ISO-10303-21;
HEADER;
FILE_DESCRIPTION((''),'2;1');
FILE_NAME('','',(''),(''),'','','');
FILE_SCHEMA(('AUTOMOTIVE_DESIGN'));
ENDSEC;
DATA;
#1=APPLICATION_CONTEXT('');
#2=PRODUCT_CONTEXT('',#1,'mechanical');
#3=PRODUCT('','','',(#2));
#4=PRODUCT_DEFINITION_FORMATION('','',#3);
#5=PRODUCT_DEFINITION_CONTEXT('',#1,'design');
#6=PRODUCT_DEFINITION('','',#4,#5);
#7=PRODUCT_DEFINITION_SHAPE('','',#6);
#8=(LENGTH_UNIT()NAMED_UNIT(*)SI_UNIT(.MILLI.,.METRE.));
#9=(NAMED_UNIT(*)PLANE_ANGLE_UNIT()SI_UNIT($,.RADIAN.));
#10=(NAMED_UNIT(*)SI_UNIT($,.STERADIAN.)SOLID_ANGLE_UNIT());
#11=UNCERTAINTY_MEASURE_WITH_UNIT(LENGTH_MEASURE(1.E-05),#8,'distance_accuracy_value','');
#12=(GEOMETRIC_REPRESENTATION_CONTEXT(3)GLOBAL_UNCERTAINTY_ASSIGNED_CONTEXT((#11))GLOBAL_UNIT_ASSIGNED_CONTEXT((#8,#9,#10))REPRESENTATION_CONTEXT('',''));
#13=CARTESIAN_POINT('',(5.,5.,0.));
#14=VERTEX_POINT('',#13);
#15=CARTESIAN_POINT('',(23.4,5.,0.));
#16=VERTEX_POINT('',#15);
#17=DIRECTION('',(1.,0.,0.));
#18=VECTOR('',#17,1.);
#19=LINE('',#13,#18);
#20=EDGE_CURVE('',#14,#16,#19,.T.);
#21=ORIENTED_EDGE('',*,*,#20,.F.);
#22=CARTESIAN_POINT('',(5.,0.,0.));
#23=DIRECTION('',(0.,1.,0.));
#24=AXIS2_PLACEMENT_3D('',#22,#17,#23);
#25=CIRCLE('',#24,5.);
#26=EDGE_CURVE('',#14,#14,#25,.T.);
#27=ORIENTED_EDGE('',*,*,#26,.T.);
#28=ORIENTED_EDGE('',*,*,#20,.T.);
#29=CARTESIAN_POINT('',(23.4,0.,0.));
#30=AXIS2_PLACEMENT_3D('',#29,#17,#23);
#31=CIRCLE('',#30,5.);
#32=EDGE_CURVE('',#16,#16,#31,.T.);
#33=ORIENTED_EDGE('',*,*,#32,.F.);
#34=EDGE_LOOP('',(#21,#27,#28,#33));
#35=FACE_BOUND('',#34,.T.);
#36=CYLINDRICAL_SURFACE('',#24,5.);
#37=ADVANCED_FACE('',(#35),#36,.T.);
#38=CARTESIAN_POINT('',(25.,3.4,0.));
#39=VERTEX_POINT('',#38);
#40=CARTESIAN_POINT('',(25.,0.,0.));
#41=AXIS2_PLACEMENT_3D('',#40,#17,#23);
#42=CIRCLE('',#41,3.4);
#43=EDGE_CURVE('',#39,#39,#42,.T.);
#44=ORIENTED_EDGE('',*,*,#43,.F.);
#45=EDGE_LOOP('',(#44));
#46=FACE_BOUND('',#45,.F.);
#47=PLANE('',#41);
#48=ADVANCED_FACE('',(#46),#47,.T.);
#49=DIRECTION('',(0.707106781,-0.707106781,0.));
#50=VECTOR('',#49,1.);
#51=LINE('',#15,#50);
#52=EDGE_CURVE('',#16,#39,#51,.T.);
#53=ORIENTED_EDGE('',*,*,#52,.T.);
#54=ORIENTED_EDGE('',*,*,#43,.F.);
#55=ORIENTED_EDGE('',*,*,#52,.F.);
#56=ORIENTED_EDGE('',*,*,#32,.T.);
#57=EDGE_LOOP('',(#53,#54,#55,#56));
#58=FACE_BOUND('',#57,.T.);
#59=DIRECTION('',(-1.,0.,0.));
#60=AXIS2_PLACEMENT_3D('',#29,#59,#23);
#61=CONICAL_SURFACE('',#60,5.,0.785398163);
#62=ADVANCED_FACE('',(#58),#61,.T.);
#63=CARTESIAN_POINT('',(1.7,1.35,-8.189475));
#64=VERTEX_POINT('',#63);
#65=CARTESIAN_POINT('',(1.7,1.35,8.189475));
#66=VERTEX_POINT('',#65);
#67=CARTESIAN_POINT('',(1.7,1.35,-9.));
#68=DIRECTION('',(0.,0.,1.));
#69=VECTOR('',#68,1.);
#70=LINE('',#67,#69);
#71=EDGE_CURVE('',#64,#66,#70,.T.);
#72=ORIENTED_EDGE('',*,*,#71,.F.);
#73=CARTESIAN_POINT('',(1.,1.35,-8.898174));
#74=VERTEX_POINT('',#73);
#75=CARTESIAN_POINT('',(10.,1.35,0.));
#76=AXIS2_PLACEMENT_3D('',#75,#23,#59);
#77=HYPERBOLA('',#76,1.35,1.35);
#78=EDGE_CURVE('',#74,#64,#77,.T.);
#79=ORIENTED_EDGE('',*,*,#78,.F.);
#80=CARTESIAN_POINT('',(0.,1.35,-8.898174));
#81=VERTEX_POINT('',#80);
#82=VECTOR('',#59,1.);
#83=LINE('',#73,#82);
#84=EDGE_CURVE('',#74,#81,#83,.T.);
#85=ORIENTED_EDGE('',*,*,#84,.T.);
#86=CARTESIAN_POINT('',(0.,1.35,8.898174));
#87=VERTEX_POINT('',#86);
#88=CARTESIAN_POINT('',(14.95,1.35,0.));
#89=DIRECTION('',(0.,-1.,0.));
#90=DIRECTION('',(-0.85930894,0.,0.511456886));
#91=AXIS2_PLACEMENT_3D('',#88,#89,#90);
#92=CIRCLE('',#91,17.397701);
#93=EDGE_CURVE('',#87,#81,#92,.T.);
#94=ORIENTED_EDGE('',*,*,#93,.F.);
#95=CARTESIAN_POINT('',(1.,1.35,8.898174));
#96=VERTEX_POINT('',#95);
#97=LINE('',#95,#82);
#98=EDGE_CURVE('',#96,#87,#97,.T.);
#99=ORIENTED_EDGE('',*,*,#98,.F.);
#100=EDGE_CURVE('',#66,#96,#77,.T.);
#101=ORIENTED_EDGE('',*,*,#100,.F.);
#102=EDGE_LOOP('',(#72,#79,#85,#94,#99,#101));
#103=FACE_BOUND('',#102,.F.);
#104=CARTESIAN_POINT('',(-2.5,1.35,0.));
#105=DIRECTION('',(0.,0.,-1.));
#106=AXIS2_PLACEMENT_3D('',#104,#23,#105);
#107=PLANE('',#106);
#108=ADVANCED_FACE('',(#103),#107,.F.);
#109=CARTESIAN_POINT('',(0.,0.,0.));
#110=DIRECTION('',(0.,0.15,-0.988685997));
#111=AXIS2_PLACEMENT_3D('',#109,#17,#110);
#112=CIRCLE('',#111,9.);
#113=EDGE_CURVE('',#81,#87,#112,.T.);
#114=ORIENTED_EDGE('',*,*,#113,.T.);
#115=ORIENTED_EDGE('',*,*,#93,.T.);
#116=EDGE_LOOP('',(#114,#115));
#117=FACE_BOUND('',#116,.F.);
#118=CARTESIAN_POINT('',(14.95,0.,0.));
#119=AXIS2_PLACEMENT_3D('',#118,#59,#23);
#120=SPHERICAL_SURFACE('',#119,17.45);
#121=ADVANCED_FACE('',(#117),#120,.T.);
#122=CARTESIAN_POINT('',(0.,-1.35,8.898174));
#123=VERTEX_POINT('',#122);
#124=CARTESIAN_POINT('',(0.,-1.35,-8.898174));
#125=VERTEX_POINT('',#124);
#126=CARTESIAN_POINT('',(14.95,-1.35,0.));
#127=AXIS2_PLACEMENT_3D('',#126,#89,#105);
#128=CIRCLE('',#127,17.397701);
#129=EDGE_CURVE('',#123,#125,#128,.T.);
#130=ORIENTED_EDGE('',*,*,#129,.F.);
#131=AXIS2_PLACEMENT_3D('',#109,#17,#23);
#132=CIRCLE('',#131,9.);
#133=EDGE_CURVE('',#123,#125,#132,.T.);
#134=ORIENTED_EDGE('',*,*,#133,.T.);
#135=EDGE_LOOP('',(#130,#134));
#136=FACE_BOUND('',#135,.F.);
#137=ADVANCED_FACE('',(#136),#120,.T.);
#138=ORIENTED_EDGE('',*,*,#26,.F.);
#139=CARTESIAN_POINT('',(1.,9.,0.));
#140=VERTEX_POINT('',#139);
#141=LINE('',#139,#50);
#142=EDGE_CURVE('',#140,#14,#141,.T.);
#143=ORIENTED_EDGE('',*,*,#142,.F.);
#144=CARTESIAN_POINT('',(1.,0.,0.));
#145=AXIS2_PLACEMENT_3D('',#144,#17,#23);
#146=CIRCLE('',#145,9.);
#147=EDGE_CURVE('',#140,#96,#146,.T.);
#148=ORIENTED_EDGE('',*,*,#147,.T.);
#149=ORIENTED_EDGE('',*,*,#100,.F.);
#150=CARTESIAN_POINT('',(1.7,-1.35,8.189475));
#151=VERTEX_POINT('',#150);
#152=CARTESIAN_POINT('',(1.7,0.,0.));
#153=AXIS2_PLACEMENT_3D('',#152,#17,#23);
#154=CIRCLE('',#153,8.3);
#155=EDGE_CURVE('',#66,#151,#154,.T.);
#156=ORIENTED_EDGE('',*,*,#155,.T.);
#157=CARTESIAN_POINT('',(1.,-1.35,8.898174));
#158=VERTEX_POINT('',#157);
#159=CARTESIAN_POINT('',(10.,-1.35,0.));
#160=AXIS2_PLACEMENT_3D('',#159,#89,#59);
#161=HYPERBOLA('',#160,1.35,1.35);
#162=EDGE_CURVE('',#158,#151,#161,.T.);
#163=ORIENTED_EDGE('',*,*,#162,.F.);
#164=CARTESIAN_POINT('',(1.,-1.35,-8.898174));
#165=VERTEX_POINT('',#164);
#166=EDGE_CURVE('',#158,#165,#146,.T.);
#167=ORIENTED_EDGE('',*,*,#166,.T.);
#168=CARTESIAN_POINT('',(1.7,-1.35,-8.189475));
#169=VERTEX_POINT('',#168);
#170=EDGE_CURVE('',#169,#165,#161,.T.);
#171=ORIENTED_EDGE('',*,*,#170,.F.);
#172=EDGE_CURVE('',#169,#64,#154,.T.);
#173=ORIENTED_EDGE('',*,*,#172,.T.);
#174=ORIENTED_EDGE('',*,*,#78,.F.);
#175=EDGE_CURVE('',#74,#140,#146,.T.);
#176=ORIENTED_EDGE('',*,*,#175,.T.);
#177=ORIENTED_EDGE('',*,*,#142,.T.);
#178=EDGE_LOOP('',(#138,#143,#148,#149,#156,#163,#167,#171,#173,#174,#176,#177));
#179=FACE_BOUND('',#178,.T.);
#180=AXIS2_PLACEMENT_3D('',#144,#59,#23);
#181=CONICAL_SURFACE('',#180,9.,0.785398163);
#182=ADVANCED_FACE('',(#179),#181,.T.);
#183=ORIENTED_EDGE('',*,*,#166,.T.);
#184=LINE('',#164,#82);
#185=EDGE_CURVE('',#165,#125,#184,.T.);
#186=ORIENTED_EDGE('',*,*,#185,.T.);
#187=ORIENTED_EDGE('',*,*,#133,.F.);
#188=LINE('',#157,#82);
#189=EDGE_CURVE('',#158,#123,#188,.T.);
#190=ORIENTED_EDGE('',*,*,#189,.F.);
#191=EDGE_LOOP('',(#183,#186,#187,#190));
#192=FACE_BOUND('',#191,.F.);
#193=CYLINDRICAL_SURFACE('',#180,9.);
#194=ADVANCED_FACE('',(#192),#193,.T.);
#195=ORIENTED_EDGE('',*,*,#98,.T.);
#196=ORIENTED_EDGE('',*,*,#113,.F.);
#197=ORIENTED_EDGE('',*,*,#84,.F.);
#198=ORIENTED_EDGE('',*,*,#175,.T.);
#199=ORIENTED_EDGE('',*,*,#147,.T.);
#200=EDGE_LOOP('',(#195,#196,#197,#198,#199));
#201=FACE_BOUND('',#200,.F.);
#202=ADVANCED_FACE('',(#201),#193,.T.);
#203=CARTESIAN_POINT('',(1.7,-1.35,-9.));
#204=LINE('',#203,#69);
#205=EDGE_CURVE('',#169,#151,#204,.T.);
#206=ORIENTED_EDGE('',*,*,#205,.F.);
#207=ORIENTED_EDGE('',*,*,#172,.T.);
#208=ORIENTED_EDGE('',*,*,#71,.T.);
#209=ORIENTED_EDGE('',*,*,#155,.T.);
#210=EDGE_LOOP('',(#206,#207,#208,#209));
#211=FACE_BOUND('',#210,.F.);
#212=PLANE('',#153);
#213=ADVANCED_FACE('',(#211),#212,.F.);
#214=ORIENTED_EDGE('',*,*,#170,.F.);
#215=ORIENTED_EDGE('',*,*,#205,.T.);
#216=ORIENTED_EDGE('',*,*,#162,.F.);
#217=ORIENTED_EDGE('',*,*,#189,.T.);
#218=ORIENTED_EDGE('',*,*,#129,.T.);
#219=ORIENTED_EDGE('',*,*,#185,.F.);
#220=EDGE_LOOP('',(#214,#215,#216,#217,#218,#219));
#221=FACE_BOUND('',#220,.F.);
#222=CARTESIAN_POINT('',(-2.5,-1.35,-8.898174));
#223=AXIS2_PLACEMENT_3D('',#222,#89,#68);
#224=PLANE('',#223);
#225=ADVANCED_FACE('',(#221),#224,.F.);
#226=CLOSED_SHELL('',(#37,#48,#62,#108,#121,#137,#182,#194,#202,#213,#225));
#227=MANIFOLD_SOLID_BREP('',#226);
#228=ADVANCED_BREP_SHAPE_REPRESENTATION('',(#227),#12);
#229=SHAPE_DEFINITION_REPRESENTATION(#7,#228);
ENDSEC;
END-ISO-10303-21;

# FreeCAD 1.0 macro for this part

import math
import FreeCAD as App
import Part
import Sketcher

V = App.Vector
Q = App.Units.Quantity


def edges_at(feature, points):
    """Names of the edges that pass closest to the given points."""
    edges = feature.Shape.Edges
    near = lambda p: min(range(len(edges)), key=lambda i: edges[i].distToShape(Part.Vertex(*p))[0])
    return sorted({f"Edge{near(p) + 1}" for p in points})


def add_polygon(sketch, points):
    """Adds a closed chain of lines whose ends are joined by coincident constraints."""
    first, n = sketch.GeometryCount, len(points)
    for a, b in zip(points, points[1:] + points[:1]):
        sketch.addGeometry(Part.LineSegment(App.Vector(*a, 0), App.Vector(*b, 0)), False)
    for i in range(n):
        sketch.addConstraint(Sketcher.Constraint("Coincident", first + i, 2, first + (i + 1) % n, 1))

doc = App.newDocument("Part")
body = doc.addObject("PartDesign::Body", "Body")

sketch1 = body.newObject("Sketcher::SketchObject", "Sketch")
sketch1.AttachmentSupport = (doc.getObject("XY_Plane"), [""])
sketch1.MapMode = "FlatFace"
sketch1.addGeometry(Part.LineSegment(V(25, 0, 0), V(25, 5, 0)), False)
sketch1.addGeometry(Part.LineSegment(V(25, 5, 0), V(5, 5, 0)), False)
sketch1.addGeometry(Part.LineSegment(V(5, 5, 0), V(1, 9, 0)), False)
sketch1.addGeometry(Part.LineSegment(V(1, 9, 0), V(0, 9, 0)), False)
sketch1.addGeometry(Part.ArcOfCircle(Part.Circle(V(14.9, 0, 0), V(0, 0, 1), 17.4), math.radians(149), math.radians(180)), False)
sketch1.addGeometry(Part.LineSegment(V(-2.5, 0, 0), V(25, 0, 0)), False)
sketch1.addConstraint(Sketcher.Constraint("Coincident", 0, 2, 1, 1))
sketch1.addConstraint(Sketcher.Constraint("Coincident", 1, 2, 2, 1))
sketch1.addConstraint(Sketcher.Constraint("Coincident", 2, 2, 3, 1))
sketch1.addConstraint(Sketcher.Constraint("Coincident", 3, 2, 4, 1))
sketch1.addConstraint(Sketcher.Constraint("Coincident", 4, 2, 5, 1))
sketch1.addConstraint(Sketcher.Constraint("Coincident", 5, 2, 0, 1))
sketch1.addConstraint(Sketcher.Constraint("Vertical", 0))
sketch1.addConstraint(Sketcher.Constraint("Horizontal", 1))
sketch1.addConstraint(Sketcher.Constraint("Horizontal", 3))
sketch1.addConstraint(Sketcher.Constraint("Horizontal", 5))
sketch1.addConstraint(Sketcher.Constraint("PointOnObject", 4, 3, -1))
sketch1.addConstraint(Sketcher.Constraint("PointOnObject", 3, 2, -2))
sketch1.addConstraint(Sketcher.Constraint("PointOnObject", 4, 2, -1))
sketch1.addConstraint(Sketcher.Constraint("DistanceY", 0, 1, 0, 2, Q("5 mm")))
sketch1.addConstraint(Sketcher.Constraint("DistanceX", -1, 1, 0, 2, Q("25 mm")))
sketch1.addConstraint(Sketcher.Constraint("DistanceX", -1, 1, 1, 2, Q("5 mm")))
sketch1.addConstraint(Sketcher.Constraint("DistanceX", 4, 2, -1, 1, Q("2.5 mm")))
sketch1.addConstraint(Sketcher.Constraint("DistanceX", 3, 2, 3, 1, Q("1 mm")))
sketch1.addConstraint(Sketcher.Constraint("Angle", 2, Q("135 deg")))
revolution = body.newObject("PartDesign::Revolution", "Revolution")
revolution.Profile = sketch1
revolution.ReferenceAxis = (sketch1, ["H_Axis"])
revolution.Angle = 360

sketch2 = body.newObject("Sketcher::SketchObject", "Sketch001")
sketch2.AttachmentSupport = (doc.getObject("YZ_Plane"), [""])
sketch2.MapMode = "FlatFace"
sketch2.AttachmentOffset = App.Placement(V(0, 0, -2.5), App.Rotation())
add_polygon(sketch2, [(-1.4, -9), (1.4, -9), (1.4, 9), (-1.4, 9)])
sketch2.addConstraint(Sketcher.Constraint("Horizontal", 0))
sketch2.addConstraint(Sketcher.Constraint("Vertical", 1))
sketch2.addConstraint(Sketcher.Constraint("Horizontal", 2))
sketch2.addConstraint(Sketcher.Constraint("Vertical", 3))
sketch2.addConstraint(Sketcher.Constraint("Symmetric", 0, 2, 2, 2, -1, 1))
sketch2.addConstraint(Sketcher.Constraint("DistanceX", 0, 1, 0, 2, Q("2.7 mm")))
sketch2.addConstraint(Sketcher.Constraint("DistanceY", 1, 1, 1, 2, Q("18 mm")))
pocket1 = body.newObject("PartDesign::Pocket", "Pocket")
pocket1.Profile = sketch2
pocket1.Length = 4.2
pocket1.Reversed = True
doc.recompute()

chamfer = body.newObject("PartDesign::Chamfer", "Chamfer")
chamfer.Base = (pocket1, edges_at(pocket1, [(25, -5, 0)]))
chamfer.Size = 1.6

doc.recompute()
